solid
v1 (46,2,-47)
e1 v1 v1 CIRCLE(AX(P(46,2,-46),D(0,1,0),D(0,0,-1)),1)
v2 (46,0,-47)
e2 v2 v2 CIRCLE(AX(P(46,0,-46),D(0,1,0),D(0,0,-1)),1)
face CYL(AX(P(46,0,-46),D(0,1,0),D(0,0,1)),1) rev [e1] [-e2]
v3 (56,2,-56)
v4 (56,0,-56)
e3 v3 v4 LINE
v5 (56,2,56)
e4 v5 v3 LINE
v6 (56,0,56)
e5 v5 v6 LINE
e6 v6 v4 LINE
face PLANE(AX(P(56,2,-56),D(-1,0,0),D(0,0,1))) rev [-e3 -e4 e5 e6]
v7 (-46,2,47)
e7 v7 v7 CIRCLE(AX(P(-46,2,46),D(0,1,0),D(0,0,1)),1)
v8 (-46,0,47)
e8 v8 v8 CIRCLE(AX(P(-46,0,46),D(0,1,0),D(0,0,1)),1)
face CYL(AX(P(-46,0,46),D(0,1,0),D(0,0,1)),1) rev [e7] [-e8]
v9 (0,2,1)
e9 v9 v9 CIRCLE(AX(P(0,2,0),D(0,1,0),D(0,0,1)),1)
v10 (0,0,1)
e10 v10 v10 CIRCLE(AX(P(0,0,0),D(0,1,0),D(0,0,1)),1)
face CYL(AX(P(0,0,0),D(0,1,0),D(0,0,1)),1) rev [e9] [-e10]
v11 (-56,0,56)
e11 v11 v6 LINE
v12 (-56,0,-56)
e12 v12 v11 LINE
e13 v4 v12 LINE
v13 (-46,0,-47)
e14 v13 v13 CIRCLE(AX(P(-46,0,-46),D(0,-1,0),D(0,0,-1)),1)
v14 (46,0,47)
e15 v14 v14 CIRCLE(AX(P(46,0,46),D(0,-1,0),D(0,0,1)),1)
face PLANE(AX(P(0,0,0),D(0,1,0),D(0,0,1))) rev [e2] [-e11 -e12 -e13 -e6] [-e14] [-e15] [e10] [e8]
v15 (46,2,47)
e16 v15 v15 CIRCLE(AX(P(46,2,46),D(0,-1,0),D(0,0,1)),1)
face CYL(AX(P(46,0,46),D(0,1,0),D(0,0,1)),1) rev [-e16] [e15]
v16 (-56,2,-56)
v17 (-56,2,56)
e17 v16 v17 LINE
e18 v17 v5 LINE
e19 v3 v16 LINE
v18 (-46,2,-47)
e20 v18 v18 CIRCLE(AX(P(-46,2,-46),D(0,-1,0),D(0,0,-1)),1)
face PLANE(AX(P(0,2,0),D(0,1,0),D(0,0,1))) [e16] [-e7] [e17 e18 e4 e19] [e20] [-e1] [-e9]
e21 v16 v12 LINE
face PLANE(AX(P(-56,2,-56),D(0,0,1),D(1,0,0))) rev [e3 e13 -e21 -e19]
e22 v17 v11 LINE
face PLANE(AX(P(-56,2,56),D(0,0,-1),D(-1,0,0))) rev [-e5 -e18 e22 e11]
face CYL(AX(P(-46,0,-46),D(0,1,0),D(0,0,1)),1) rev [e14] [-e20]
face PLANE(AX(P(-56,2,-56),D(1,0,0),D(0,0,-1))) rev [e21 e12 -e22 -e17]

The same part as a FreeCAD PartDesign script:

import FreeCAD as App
import Part
import Sketcher

V = App.Vector


def add_polygon(sketch, points):
    """Adds a closed chain of lines whose ends are joined by coincident constraints."""
    first, n = sketch.GeometryCount, len(points)
    for a, b in zip(points, points[1:] + points[:1]):
        sketch.addGeometry(Part.LineSegment(App.Vector(*a, 0), App.Vector(*b, 0)), False)
    for i in range(n):
        sketch.addConstraint(Sketcher.Constraint("Coincident", first + i, 2, first + (i + 1) % n, 1))

doc = App.newDocument("Part")
params = doc.addObject("Spreadsheet::Sheet", "Params")
for row, (alias, value) in enumerate([
    ("sketch1_width", "112 mm"),
    ("pad1_length", "2 mm"),
    ("sketch2_diameter", "2 mm"),
    ("pocket1_length", "2 mm"),
    ("sketch3_diameter", "2 mm"),
    ("pocket2_length", "2 mm"),
], start=1):
    params.set(f"A{row}", alias)
    params.set(f"B{row}", "=" + value)
    params.setAlias(f"B{row}", alias)

body = doc.addObject("PartDesign::Body", "Body")

# Sketch on XZ plane
sketch1 = doc.addObject("Sketcher::SketchObject", "Sketch")
body.addObject(sketch1)
sketch1.AttachmentSupport = (doc.XZ_Plane, [""])
sketch1.MapMode = "FlatFace"
add_polygon(sketch1, [(-56, -56), (-56, 56), (56, 56), (56, -56)])  # lines 0-3
sketch1.addConstraint([
    Sketcher.Constraint("Vertical", 0),
    Sketcher.Constraint("Horizontal", 1),
    Sketcher.Constraint("Vertical", 2),
    Sketcher.Constraint("Horizontal", 3),
    Sketcher.Constraint("Symmetric", 0, 2, 2, 2, -1, 1),
    Sketcher.Constraint("Equal", 3, 0),
    Sketcher.Constraint("DistanceX", 1, 1, 1, 2, 112.0),
])
sketch1.setExpression("Constraints[10]", "Params.sketch1_width")
pad1 = doc.addObject("PartDesign::Pad", "Pad")
body.addObject(pad1)
pad1.Profile = sketch1
pad1.setExpression("Length", "Params.pad1_length")
pad1.Reversed = True

# Sketch on XZ plane
sketch2 = doc.addObject("Sketcher::SketchObject", "Sketch001")
body.addObject(sketch2)
sketch2.AttachmentSupport = (doc.XZ_Plane, [""])
sketch2.MapMode = "FlatFace"
sketch2.AttachmentOffset = App.Placement(V(0, 0, -2), App.Rotation())
sketch2.addGeometry([
    Part.Circle(V(-46, 46, 0), V(0, 0, 1), 1),
    Part.Circle(V(0, 0, 0), V(0, 0, 1), 1),
], False)
sketch2.addConstraint([
    Sketcher.Constraint("Coincident", 1, 3, -1, 1),
    Sketcher.Constraint("Equal", 0, 1),
    Sketcher.Constraint("Diameter", 0, 2.0),
    Sketcher.Constraint("DistanceX", 0, 3, -1, 1, 46.0),
    Sketcher.Constraint("DistanceY", -1, 1, 0, 3, 46.0),
])
sketch2.setExpression("Constraints[2]", "Params.sketch2_diameter")
pocket1 = doc.addObject("PartDesign::Pocket", "Pocket")
body.addObject(pocket1)
pocket1.Profile = sketch2
pocket1.setExpression("Length", "Params.pocket1_length")
pocket1.Reversed = True
doc.recompute()

mirrored = doc.addObject("PartDesign::Mirrored", "Mirrored")
body.addObject(mirrored)
mirrored.Originals = [pocket1]
mirrored.MirrorPlane = (doc.YZ_Plane, [""])
body.Tip = mirrored
doc.recompute()

mirrored2 = doc.addObject("PartDesign::Mirrored", "Mirrored001")
body.addObject(mirrored2)
mirrored2.Originals = [pocket1]
mirrored2.MirrorPlane = (doc.XY_Plane, [""])
body.Tip = mirrored2

# Sketch on XZ plane
sketch3 = doc.addObject("Sketcher::SketchObject", "Sketch002")
body.addObject(sketch3)
sketch3.AttachmentSupport = (doc.XZ_Plane, [""])
sketch3.MapMode = "FlatFace"
sketch3.AttachmentOffset = App.Placement(V(0, 0, -2), App.Rotation())
sketch3.addGeometry([
    Part.Circle(V(46, -46, 0), V(0, 0, 1), 1),
    Part.Circle(V(0, 0, 0), V(0, 0, 1), 1),
], False)
sketch3.addConstraint([
    Sketcher.Constraint("Coincident", 1, 3, -1, 1),
    Sketcher.Constraint("Equal", 0, 1),
    Sketcher.Constraint("Diameter", 0, 2.0),
    Sketcher.Constraint("DistanceX", -1, 1, 0, 3, 46.0),
    Sketcher.Constraint("DistanceY", 0, 3, -1, 1, 46.0),
])
sketch3.setExpression("Constraints[2]", "Params.sketch3_diameter")
pocket2 = doc.addObject("PartDesign::Pocket", "Pocket001")
body.addObject(pocket2)
pocket2.Profile = sketch3
pocket2.setExpression("Length", "Params.pocket2_length")
pocket2.Reversed = True

doc.recompute()
